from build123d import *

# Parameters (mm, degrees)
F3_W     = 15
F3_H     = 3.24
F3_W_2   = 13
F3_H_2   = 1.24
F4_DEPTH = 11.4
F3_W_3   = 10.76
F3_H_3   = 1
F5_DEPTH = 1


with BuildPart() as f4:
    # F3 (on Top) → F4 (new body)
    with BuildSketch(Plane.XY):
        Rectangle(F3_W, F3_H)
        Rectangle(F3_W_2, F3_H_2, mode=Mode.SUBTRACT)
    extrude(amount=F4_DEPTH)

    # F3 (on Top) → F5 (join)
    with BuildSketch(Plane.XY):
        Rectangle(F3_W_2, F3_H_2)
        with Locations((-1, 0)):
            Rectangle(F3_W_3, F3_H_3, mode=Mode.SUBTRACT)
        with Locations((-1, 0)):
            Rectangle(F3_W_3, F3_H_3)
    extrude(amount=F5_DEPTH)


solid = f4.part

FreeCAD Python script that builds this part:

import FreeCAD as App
import Part
import Sketcher
Q = App.Units.Quantity


def add_polygon(sketch, points):
    """Adds a closed chain of lines whose ends are joined by coincident constraints."""
    first, n = sketch.GeometryCount, len(points)
    for a, b in zip(points, points[1:] + points[:1]):
        sketch.addGeometry(Part.LineSegment(App.Vector(*a, 0), App.Vector(*b, 0)), False)
    for i in range(n):
        sketch.addConstraint(Sketcher.Constraint("Coincident", first + i, 2, first + (i + 1) % n, 1))

doc = App.newDocument("Part")
params = doc.addObject("Spreadsheet::Sheet", "Params")
for row, (alias, value) in enumerate([
    ("sketch1_width", "15 mm"),
    ("sketch1_width2", "13 mm"),
    ("sketch1_height", "3.24 mm"),
    ("pad1_length", "11.4 mm"),
    ("sketch2_width", "13 mm"),
    ("sketch2_height", "1.24 mm"),
    ("pad2_length", "1 mm"),
], start=1):
    params.set(f"A{row}", alias)
    params.set(f"B{row}", "=" + value)
    params.setAlias(f"B{row}", alias)

body = doc.addObject("PartDesign::Body", "Body")

# Sketch on XY plane
sketch1 = doc.addObject("Sketcher::SketchObject", "Sketch")
body.addObject(sketch1)
sketch1.AttachmentSupport = (doc.XY_Plane, [""])
sketch1.MapMode = "FlatFace"
add_polygon(sketch1, [(-7.5, 1.6), (-7.5, -1.6), (7.5, -1.6), (7.5, 1.6)])  # lines 0-3
add_polygon(sketch1, [(6.5, -0.6), (-6.5, -0.6), (-6.5, 0.6), (6.5, 0.6)])  # lines 4-7
sketch1.addConstraint([
    Sketcher.Constraint("Vertical", 0),
    Sketcher.Constraint("Horizontal", 1),
    Sketcher.Constraint("Vertical", 2),
    Sketcher.Constraint("Horizontal", 3),
    Sketcher.Constraint("Horizontal", 4),
    Sketcher.Constraint("Vertical", 5),
    Sketcher.Constraint("Horizontal", 6),
    Sketcher.Constraint("Vertical", 7),
    Sketcher.Constraint("Symmetric", 0, 2, 2, 2, -1, 1),
    Sketcher.Constraint("Symmetric", 4, 2, 6, 2, -1, 1),
    Sketcher.Constraint("DistanceX", 1, 1, 1, 2, Q("15 mm")),
    Sketcher.Constraint("DistanceX", 4, 2, 4, 1, Q("13 mm")),
    Sketcher.Constraint("DistanceY", 0, 2, 4, 2, Q("1 mm")),
    Sketcher.Constraint("DistanceY", 0, 2, 0, 1, Q("3.24 mm")),
])
sketch1.setExpression("Constraints[18]", "Params.sketch1_width")
sketch1.setExpression("Constraints[19]", "Params.sketch1_width2")
sketch1.setExpression("Constraints[21]", "Params.sketch1_height")
pad1 = doc.addObject("PartDesign::Pad", "Pad")
body.addObject(pad1)
pad1.Profile = sketch1
pad1.setExpression("Length", "Params.pad1_length")

# Sketch on XY plane
sketch2 = doc.addObject("Sketcher::SketchObject", "Sketch001")
body.addObject(sketch2)
sketch2.AttachmentSupport = (doc.XY_Plane, [""])
sketch2.MapMode = "FlatFace"
add_polygon(sketch2, [(-6.5, 0.6), (-6.5, -0.6), (6.5, -0.6), (6.5, 0.6)])  # lines 0-3
sketch2.addConstraint([
    Sketcher.Constraint("Vertical", 0),
    Sketcher.Constraint("Horizontal", 1),
    Sketcher.Constraint("Vertical", 2),
    Sketcher.Constraint("Horizontal", 3),
    Sketcher.Constraint("Symmetric", 0, 2, 2, 2, -1, 1),
    Sketcher.Constraint("DistanceX", 1, 1, 1, 2, Q("13 mm")),
    Sketcher.Constraint("DistanceY", 0, 2, 0, 1, Q("1.24 mm")),
])
sketch2.setExpression("Constraints[9]", "Params.sketch2_width")
sketch2.setExpression("Constraints[10]", "Params.sketch2_height")
pad2 = doc.addObject("PartDesign::Pad", "Pad001")
body.addObject(pad2)
pad2.Profile = sketch2
pad2.setExpression("Length", "Params.pad2_length")

doc.recompute()
